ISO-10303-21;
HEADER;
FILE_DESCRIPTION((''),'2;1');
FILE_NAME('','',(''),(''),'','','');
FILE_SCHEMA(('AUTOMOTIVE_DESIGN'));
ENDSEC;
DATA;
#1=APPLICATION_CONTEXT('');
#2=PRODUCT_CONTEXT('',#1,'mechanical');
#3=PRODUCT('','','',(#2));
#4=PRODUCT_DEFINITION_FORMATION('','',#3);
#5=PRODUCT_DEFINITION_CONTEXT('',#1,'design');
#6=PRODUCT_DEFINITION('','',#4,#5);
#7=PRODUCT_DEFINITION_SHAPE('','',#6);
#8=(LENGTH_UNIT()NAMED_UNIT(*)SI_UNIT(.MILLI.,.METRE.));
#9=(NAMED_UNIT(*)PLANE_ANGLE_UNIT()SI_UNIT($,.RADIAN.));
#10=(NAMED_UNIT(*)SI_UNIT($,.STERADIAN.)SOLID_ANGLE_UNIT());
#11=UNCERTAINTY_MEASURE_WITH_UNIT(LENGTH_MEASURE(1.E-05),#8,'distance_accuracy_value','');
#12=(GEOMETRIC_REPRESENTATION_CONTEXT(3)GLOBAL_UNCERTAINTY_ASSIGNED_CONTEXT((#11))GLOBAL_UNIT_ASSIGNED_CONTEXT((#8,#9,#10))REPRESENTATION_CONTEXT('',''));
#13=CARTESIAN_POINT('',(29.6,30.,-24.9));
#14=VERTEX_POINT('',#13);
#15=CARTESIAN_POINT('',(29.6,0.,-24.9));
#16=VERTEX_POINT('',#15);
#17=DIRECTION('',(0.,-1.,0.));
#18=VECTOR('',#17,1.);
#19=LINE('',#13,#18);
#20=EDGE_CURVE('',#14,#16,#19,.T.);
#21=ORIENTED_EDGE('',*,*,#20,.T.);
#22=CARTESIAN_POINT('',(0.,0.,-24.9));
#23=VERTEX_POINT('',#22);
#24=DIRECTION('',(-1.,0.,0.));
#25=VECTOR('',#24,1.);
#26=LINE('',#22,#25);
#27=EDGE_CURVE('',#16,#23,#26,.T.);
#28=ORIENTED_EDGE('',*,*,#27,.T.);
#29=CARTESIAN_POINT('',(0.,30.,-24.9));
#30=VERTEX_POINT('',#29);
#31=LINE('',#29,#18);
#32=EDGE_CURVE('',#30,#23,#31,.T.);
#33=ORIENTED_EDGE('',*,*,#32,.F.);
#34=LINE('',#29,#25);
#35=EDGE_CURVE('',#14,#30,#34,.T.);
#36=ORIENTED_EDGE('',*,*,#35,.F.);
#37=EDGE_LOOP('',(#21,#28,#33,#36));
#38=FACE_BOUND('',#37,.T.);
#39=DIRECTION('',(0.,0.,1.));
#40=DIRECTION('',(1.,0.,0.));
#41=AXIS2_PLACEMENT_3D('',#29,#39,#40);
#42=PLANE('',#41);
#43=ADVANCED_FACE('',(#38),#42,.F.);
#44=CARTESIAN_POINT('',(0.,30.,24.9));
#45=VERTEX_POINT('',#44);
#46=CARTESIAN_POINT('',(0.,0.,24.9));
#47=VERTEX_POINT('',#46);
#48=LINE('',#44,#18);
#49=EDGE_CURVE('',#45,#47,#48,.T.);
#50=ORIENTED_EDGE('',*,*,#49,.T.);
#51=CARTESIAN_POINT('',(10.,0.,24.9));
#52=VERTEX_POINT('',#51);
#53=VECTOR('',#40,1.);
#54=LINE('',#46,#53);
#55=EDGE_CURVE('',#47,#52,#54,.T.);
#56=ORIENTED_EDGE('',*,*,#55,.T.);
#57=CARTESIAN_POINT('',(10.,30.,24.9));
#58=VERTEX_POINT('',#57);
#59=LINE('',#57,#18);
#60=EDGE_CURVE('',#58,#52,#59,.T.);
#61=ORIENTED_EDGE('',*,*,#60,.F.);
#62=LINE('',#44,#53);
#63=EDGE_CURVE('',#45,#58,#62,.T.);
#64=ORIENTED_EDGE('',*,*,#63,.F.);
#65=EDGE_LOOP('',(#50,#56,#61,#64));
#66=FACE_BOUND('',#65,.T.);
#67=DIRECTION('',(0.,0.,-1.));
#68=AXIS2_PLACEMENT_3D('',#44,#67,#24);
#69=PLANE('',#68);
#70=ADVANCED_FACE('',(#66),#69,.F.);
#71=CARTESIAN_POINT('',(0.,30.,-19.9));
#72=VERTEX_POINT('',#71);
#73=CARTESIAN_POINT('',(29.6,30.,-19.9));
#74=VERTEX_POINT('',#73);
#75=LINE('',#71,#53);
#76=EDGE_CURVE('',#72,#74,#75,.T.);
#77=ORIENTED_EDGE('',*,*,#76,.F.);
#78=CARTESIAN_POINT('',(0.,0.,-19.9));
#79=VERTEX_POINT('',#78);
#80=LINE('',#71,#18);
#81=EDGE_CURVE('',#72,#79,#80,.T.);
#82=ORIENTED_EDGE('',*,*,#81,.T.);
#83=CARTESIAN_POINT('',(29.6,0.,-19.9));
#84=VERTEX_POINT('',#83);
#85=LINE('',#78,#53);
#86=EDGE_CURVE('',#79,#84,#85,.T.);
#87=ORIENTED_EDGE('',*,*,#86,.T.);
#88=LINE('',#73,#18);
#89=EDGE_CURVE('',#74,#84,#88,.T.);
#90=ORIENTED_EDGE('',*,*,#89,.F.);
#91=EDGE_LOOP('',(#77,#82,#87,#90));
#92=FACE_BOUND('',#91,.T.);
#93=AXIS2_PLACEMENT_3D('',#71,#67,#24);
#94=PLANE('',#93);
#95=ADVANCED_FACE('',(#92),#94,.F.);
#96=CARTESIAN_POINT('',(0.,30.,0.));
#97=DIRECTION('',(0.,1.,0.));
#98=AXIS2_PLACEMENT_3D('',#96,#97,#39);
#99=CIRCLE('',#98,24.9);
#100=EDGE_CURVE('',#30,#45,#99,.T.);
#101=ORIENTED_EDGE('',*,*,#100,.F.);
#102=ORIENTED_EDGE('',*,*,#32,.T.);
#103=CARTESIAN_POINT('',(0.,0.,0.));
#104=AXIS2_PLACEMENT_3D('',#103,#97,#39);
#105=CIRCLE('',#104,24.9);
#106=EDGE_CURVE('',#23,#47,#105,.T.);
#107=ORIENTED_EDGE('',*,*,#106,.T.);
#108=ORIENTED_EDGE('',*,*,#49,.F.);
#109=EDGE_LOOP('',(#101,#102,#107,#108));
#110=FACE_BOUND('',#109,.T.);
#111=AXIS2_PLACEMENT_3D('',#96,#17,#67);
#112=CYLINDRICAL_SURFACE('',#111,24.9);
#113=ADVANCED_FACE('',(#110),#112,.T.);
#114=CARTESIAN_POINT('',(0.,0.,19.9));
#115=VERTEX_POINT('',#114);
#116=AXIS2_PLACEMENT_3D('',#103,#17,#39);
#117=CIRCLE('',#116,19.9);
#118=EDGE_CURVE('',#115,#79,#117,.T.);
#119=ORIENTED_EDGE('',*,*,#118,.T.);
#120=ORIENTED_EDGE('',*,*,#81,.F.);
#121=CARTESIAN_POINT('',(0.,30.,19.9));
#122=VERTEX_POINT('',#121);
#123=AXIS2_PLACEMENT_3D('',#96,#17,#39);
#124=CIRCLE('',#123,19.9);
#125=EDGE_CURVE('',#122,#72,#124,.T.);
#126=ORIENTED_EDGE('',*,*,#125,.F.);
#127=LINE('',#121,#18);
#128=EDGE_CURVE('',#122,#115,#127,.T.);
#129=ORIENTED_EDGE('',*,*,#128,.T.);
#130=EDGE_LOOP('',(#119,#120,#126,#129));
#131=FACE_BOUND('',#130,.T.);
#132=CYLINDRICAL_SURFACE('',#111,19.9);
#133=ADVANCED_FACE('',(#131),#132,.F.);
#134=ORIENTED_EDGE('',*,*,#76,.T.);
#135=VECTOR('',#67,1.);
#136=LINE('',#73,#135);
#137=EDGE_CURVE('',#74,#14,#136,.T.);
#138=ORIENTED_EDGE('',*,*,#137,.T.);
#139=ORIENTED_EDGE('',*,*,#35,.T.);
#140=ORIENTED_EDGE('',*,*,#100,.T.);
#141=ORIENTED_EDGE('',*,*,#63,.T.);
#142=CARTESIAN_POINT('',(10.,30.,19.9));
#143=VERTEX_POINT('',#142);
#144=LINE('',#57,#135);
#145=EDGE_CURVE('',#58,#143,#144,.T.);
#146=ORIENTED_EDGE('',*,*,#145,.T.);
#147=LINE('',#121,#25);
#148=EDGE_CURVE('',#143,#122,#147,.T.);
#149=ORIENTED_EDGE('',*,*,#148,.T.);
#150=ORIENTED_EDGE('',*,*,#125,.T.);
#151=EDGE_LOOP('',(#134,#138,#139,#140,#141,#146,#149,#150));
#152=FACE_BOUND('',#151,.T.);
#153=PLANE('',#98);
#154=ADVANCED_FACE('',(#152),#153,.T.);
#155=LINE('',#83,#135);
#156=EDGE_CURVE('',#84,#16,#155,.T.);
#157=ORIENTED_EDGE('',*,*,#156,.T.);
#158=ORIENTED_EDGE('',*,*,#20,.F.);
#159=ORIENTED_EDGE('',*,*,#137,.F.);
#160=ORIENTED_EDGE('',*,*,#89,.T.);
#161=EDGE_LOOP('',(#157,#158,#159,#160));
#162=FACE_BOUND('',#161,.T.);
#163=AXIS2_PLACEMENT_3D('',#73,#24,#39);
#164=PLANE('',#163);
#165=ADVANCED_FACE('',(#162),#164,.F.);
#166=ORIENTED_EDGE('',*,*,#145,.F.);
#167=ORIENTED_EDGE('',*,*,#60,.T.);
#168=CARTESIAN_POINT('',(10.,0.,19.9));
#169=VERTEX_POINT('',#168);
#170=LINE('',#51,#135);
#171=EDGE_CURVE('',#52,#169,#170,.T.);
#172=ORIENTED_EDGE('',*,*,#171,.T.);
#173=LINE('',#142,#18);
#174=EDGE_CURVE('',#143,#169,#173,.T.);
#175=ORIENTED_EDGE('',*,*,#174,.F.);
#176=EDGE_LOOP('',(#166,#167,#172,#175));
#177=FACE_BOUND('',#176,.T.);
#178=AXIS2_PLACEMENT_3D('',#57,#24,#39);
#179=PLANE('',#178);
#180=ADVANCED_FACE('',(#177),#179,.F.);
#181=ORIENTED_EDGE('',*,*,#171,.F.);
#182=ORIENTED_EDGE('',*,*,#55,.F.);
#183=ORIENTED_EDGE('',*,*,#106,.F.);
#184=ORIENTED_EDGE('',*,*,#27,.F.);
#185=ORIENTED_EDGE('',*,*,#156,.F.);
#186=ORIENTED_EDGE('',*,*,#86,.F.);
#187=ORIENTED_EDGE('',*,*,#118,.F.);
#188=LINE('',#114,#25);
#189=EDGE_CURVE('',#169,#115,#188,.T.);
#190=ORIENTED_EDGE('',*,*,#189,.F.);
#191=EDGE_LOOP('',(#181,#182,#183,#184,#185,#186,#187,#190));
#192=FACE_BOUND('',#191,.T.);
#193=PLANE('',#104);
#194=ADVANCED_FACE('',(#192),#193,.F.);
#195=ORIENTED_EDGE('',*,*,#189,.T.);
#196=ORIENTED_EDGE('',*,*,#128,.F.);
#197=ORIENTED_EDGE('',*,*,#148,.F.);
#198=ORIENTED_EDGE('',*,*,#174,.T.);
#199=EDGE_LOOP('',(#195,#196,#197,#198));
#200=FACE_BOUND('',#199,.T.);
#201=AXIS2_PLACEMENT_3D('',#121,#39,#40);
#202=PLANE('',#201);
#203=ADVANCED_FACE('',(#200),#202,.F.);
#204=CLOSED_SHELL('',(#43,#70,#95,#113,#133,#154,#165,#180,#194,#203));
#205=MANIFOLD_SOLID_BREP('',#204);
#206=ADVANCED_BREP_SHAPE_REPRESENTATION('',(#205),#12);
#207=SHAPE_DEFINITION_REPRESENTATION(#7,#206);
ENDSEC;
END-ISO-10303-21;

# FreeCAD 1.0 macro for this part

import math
import FreeCAD as App
import Part
import Sketcher
Q = App.Units.Quantity

doc = App.newDocument("Part")
body = doc.addObject("PartDesign::Body", "Body")

# Sketch on XZ plane
sketch1 = doc.addObject("Sketcher::SketchObject", "Sketch")
body.addObject(sketch1)
sketch1.AttachmentSupport = (doc.XZ_Plane, [""])
sketch1.MapMode = "FlatFace"
sketch1.addGeometry([
    Part.LineSegment(App.Vector(0, -20, 0), App.Vector(30, -20, 0)),  # 0
    Part.LineSegment(App.Vector(30, -20, 0), App.Vector(30, -25, 0)),  # 1
    Part.LineSegment(App.Vector(30, -25, 0), App.Vector(0, -25, 0)),  # 2
    Part.ArcOfCircle(Part.Circle(App.Vector(0, 0, 0), App.Vector(0, 0, 1), 25), math.radians(90), math.radians(270)),  # 3
    Part.LineSegment(App.Vector(0, 25, 0), App.Vector(10, 25, 0)),  # 4
    Part.LineSegment(App.Vector(10, 25, 0), App.Vector(10, 20, 0)),  # 5
    Part.LineSegment(App.Vector(10, 20, 0), App.Vector(0, 20, 0)),  # 6
    Part.ArcOfCircle(Part.Circle(App.Vector(0, 0, 0), App.Vector(0, 0, 1), 20), math.radians(90), math.radians(270)),  # 7
], False)
sketch1.addConstraint([
    Sketcher.Constraint("Coincident", 0, 2, 1, 1),
    Sketcher.Constraint("Coincident", 1, 2, 2, 1),
    Sketcher.Constraint("Tangent", 2, 2, 3, 2),
    Sketcher.Constraint("Tangent", 3, 1, 4, 1),
    Sketcher.Constraint("Coincident", 4, 2, 5, 1),
    Sketcher.Constraint("Coincident", 5, 2, 6, 1),
    Sketcher.Constraint("Tangent", 6, 2, 7, 1),
    Sketcher.Constraint("Tangent", 7, 2, 0, 1),
    Sketcher.Constraint("Horizontal", 0),
    Sketcher.Constraint("Vertical", 1),
    Sketcher.Constraint("Horizontal", 2),
    Sketcher.Constraint("Horizontal", 4),
    Sketcher.Constraint("Vertical", 5),
    Sketcher.Constraint("Horizontal", 6),
    Sketcher.Constraint("Coincident", 3, 3, -1, 1),
    Sketcher.Constraint("Coincident", 7, 3, -1, 1),
    Sketcher.Constraint("Radius", 3, Q("24.9 mm")),
    Sketcher.Constraint("Radius", 7, Q("19.9 mm")),
    Sketcher.Constraint("DistanceX", 4, 1, 4, 2, Q("10 mm")),
    Sketcher.Constraint("DistanceX", 0, 1, 0, 2, Q("29.6 mm")),
])
pad1 = doc.addObject("PartDesign::Pad", "Pad")
body.addObject(pad1)
pad1.Profile = sketch1
pad1.Length = 30
pad1.Reversed = True

doc.recompute()
